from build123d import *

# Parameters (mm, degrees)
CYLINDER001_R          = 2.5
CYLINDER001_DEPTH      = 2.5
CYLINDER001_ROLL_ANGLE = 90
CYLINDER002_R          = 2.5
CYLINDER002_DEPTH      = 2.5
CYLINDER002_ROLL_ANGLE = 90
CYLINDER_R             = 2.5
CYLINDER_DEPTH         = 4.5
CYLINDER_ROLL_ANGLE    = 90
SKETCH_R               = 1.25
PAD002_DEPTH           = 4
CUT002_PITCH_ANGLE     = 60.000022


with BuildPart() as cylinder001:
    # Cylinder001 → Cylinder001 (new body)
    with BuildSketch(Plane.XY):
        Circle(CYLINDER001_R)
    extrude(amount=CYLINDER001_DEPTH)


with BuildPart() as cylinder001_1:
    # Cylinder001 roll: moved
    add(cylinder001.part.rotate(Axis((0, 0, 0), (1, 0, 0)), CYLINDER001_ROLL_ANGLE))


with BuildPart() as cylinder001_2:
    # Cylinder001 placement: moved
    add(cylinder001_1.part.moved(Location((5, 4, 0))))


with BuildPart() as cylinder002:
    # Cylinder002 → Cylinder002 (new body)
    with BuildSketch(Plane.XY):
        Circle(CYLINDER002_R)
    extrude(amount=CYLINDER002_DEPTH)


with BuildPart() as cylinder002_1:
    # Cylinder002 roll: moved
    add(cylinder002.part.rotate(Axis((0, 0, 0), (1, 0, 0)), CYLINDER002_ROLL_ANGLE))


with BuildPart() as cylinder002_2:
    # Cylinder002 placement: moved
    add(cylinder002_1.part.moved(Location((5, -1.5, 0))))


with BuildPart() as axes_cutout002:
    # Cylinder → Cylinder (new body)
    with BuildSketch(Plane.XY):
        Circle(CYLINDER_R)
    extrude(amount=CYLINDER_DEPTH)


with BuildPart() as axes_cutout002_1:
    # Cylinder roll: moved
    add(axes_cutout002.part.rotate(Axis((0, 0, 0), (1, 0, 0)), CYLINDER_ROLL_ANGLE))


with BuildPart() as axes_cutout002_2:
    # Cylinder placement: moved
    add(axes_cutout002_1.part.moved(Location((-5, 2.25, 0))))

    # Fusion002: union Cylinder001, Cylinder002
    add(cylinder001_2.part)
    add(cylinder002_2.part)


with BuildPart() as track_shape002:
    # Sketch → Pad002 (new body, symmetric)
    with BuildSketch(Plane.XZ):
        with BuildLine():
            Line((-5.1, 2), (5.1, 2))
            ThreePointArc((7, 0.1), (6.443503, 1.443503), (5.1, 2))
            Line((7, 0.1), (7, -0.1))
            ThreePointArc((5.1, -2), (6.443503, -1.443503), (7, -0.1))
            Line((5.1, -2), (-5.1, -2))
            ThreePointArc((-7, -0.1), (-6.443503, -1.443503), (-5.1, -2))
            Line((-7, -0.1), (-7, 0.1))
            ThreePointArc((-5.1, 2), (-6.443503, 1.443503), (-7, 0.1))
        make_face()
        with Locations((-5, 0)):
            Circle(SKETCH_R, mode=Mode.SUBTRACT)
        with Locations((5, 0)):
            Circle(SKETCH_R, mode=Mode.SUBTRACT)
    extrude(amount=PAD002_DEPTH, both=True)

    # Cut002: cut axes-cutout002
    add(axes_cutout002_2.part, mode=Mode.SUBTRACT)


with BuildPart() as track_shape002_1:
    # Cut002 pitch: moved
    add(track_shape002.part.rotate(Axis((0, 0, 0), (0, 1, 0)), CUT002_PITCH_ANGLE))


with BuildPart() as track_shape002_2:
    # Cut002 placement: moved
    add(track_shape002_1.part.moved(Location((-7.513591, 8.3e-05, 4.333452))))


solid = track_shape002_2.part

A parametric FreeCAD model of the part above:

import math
import FreeCAD as App
import Part
import Sketcher
Q = App.Units.Quantity

doc = App.newDocument("Part")
body = doc.addObject("PartDesign::Body", "Body")

# Sketch on XY plane
sketch1 = doc.addObject("Sketcher::SketchObject", "Sketch")
body.addObject(sketch1)
sketch1.AttachmentSupport = (doc.XY_Plane, [""])
sketch1.MapMode = "FlatFace"
sketch1.addGeometry(Part.Circle(App.Vector(0, 0, 0), App.Vector(0, 0, 1), 2.5), False)
sketch1.addConstraint(Sketcher.Constraint("Coincident", 0, 3, -1, 1))
sketch1.addConstraint(Sketcher.Constraint("Diameter", 0, Q("5 mm")))
pad1 = doc.addObject("PartDesign::Pad", "Pad")
body.addObject(pad1)
pad1.Profile = sketch1
pad1.Length = 2.5
body2 = doc.addObject("PartDesign::Body", "Body001")
doc.recompute()

body.Placement = App.Placement(App.Vector(0, 0, 0), App.Rotation(App.Vector(1, 0, 0), 90))
boolean = doc.addObject("PartDesign::Boolean", "Boolean")
body2.addObject(boolean)
boolean.Type = "Fuse"
boolean.addObjects([body])
body3 = doc.addObject("PartDesign::Body", "Body002")
doc.recompute()

body2.Placement = App.Placement(App.Vector(5, 4, 0), App.Rotation(App.Vector(0, 0, 1), 0))
boolean2 = doc.addObject("PartDesign::Boolean", "Boolean001")
body3.addObject(boolean2)
boolean2.Type = "Fuse"
boolean2.addObjects([body2])
body4 = doc.addObject("PartDesign::Body", "Body003")

# Sketch on XY plane
sketch2 = doc.addObject("Sketcher::SketchObject", "Sketch001")
body4.addObject(sketch2)
sketch2.AttachmentSupport = (doc.getObject("XY_Plane003"), [""])
sketch2.MapMode = "FlatFace"
sketch2.addGeometry(Part.Circle(App.Vector(0, 0, 0), App.Vector(0, 0, 1), 2.5), False)
sketch2.addConstraint(Sketcher.Constraint("Coincident", 0, 3, -1, 1))
sketch2.addConstraint(Sketcher.Constraint("Diameter", 0, Q("5 mm")))
pad2 = doc.addObject("PartDesign::Pad", "Pad001")
body4.addObject(pad2)
pad2.Profile = sketch2
pad2.Length = 2.5
body5 = doc.addObject("PartDesign::Body", "Body004")
doc.recompute()

body4.Placement = App.Placement(App.Vector(0, 0, 0), App.Rotation(App.Vector(1, 0, 0), 90))
boolean3 = doc.addObject("PartDesign::Boolean", "Boolean002")
body5.addObject(boolean3)
boolean3.Type = "Fuse"
boolean3.addObjects([body4])
body6 = doc.addObject("PartDesign::Body", "Body005")
doc.recompute()

body5.Placement = App.Placement(App.Vector(5, -1.5, 0), App.Rotation(App.Vector(0, 0, 1), 0))
boolean4 = doc.addObject("PartDesign::Boolean", "Boolean003")
body6.addObject(boolean4)
boolean4.Type = "Fuse"
boolean4.addObjects([body5])
body7 = doc.addObject("PartDesign::Body", "Body006")

# Sketch on XY plane
sketch3 = doc.addObject("Sketcher::SketchObject", "Sketch002")
body7.addObject(sketch3)
sketch3.AttachmentSupport = (doc.getObject("XY_Plane006"), [""])
sketch3.MapMode = "FlatFace"
sketch3.addGeometry(Part.Circle(App.Vector(0, 0, 0), App.Vector(0, 0, 1), 2.5), False)
sketch3.addConstraint(Sketcher.Constraint("Coincident", 0, 3, -1, 1))
sketch3.addConstraint(Sketcher.Constraint("Diameter", 0, Q("5 mm")))
pad3 = doc.addObject("PartDesign::Pad", "Pad002")
body7.addObject(pad3)
pad3.Profile = sketch3
pad3.Length = 4.5
body8 = doc.addObject("PartDesign::Body", "Body007")
doc.recompute()

body7.Placement = App.Placement(App.Vector(0, 0, 0), App.Rotation(App.Vector(1, 0, 0), 90))
boolean5 = doc.addObject("PartDesign::Boolean", "Boolean004")
body8.addObject(boolean5)
boolean5.Type = "Fuse"
boolean5.addObjects([body7])
body9 = doc.addObject("PartDesign::Body", "Body008")
body9.AllowCompound = True
doc.recompute()

body8.Placement = App.Placement(App.Vector(-5, 2.25, 0), App.Rotation(App.Vector(0, 0, 1), 0))
boolean6 = doc.addObject("PartDesign::Boolean", "Boolean005")
body9.addObject(boolean6)
boolean6.Type = "Fuse"
boolean6.addObjects([body8])
doc.recompute()

boolean7 = doc.addObject("PartDesign::Boolean", "Boolean006")
body9.addObject(boolean7)
boolean7.Type = "Fuse"
boolean7.addObjects([body3])
doc.recompute()

boolean8 = doc.addObject("PartDesign::Boolean", "Boolean007")
body9.addObject(boolean8)
boolean8.Type = "Fuse"
boolean8.addObjects([body6])
body10 = doc.addObject("PartDesign::Body", "Body009")

# Sketch on XZ plane
sketch4 = doc.addObject("Sketcher::SketchObject", "Sketch003")
body10.addObject(sketch4)
sketch4.AttachmentSupport = (doc.getObject("XZ_Plane009"), [""])
sketch4.MapMode = "FlatFace"
sketch4.addGeometry(Part.LineSegment(App.Vector(5.1, 2, 0), App.Vector(-5.1, 2, 0)), False)
sketch4.addGeometry(Part.ArcOfCircle(Part.Circle(App.Vector(-5.1, 0.1, 0), App.Vector(0, 0, 1), 1.9), math.radians(90), math.radians(180)), False)
sketch4.addGeometry(Part.LineSegment(App.Vector(-7, 0.1, 0), App.Vector(-7, -0.1, 0)), False)
sketch4.addGeometry(Part.ArcOfCircle(Part.Circle(App.Vector(-5.1, -0.1, 0), App.Vector(0, 0, 1), 1.9), math.radians(180), math.radians(270)), False)
sketch4.addGeometry(Part.LineSegment(App.Vector(-5.1, -2, 0), App.Vector(5.1, -2, 0)), False)
sketch4.addGeometry(Part.ArcOfCircle(Part.Circle(App.Vector(5.1, -0.1, 0), App.Vector(0, 0, 1), 1.9), math.radians(-90), math.radians(0)), False)
sketch4.addGeometry(Part.LineSegment(App.Vector(7, -0.1, 0), App.Vector(7, 0.1, 0)), False)
sketch4.addGeometry(Part.ArcOfCircle(Part.Circle(App.Vector(5.1, 0.1, 0), App.Vector(0, 0, 1), 1.9), math.radians(0), math.radians(90)), False)
sketch4.addGeometry(Part.Circle(App.Vector(5, 0, 0), App.Vector(0, 0, 1), 1.25), False)
sketch4.addGeometry(Part.Circle(App.Vector(-5, 0, 0), App.Vector(0, 0, 1), 1.25), False)
sketch4.addConstraint(Sketcher.Constraint("Tangent", 0, 2, 1, 1))
sketch4.addConstraint(Sketcher.Constraint("Tangent", 1, 2, 2, 1))
sketch4.addConstraint(Sketcher.Constraint("Tangent", 2, 2, 3, 1))
sketch4.addConstraint(Sketcher.Constraint("Tangent", 3, 2, 4, 1))
sketch4.addConstraint(Sketcher.Constraint("Tangent", 4, 2, 5, 1))
sketch4.addConstraint(Sketcher.Constraint("Tangent", 5, 2, 6, 1))
sketch4.addConstraint(Sketcher.Constraint("Tangent", 6, 2, 7, 1))
sketch4.addConstraint(Sketcher.Constraint("Tangent", 7, 2, 0, 1))
sketch4.addConstraint(Sketcher.Constraint("Horizontal", 0))
sketch4.addConstraint(Sketcher.Constraint("Vertical", 2))
sketch4.addConstraint(Sketcher.Constraint("Horizontal", 4))
sketch4.addConstraint(Sketcher.Constraint("Vertical", 6))
sketch4.addConstraint(Sketcher.Constraint("Equal", 1, 3))
sketch4.addConstraint(Sketcher.Constraint("Equal", 3, 5))
sketch4.addConstraint(Sketcher.Constraint("Equal", 5, 7))
sketch4.addConstraint(Sketcher.Constraint("Equal", 8, 9))
sketch4.addConstraint(Sketcher.Constraint("Symmetric", 1, 3, 5, 3, -1, 1))
sketch4.addConstraint(Sketcher.Constraint("Symmetric", 8, 3, 9, 3, -1, 1))
sketch4.addConstraint(Sketcher.Constraint("PointOnObject", 8, 3, -1))
sketch4.addConstraint(Sketcher.Constraint("Diameter", 8, Q("2.5 mm")))
sketch4.addConstraint(Sketcher.Constraint("Radius", 1, Q("1.9 mm")))
sketch4.addConstraint(Sketcher.Constraint("DistanceX", 0, 2, 0, 1, Q("10.2 mm")))
sketch4.addConstraint(Sketcher.Constraint("DistanceY", 2, 2, 2, 1, Q("0.2 mm")))
sketch4.addConstraint(Sketcher.Constraint("DistanceX", -1, 1, 8, 3, Q("5 mm")))
pad4 = doc.addObject("PartDesign::Pad", "Pad003")
body10.addObject(pad4)
pad4.Profile = sketch4
pad4.Length = 8
pad4.Midplane = True
doc.recompute()

boolean9 = doc.addObject("PartDesign::Boolean", "Boolean008")
body10.addObject(boolean9)
boolean9.Type = "Cut"
boolean9.addObjects([body9])
body11 = doc.addObject("PartDesign::Body", "Body010")
doc.recompute()

body10.Placement = App.Placement(App.Vector(0, 0, 0), App.Rotation(App.Vector(0, 1, 0), 60.000022))
boolean10 = doc.addObject("PartDesign::Boolean", "Boolean009")
body11.addObject(boolean10)
boolean10.Type = "Fuse"
boolean10.addObjects([body10])
body12 = doc.addObject("PartDesign::Body", "Body011")
doc.recompute()

body11.Placement = App.Placement(App.Vector(-7.513591, 0.000083, 4.333452), App.Rotation(App.Vector(0, 0, 1), 0))
boolean11 = doc.addObject("PartDesign::Boolean", "Boolean010")
body12.addObject(boolean11)
boolean11.Type = "Fuse"
boolean11.addObjects([body11])

doc.recompute()
